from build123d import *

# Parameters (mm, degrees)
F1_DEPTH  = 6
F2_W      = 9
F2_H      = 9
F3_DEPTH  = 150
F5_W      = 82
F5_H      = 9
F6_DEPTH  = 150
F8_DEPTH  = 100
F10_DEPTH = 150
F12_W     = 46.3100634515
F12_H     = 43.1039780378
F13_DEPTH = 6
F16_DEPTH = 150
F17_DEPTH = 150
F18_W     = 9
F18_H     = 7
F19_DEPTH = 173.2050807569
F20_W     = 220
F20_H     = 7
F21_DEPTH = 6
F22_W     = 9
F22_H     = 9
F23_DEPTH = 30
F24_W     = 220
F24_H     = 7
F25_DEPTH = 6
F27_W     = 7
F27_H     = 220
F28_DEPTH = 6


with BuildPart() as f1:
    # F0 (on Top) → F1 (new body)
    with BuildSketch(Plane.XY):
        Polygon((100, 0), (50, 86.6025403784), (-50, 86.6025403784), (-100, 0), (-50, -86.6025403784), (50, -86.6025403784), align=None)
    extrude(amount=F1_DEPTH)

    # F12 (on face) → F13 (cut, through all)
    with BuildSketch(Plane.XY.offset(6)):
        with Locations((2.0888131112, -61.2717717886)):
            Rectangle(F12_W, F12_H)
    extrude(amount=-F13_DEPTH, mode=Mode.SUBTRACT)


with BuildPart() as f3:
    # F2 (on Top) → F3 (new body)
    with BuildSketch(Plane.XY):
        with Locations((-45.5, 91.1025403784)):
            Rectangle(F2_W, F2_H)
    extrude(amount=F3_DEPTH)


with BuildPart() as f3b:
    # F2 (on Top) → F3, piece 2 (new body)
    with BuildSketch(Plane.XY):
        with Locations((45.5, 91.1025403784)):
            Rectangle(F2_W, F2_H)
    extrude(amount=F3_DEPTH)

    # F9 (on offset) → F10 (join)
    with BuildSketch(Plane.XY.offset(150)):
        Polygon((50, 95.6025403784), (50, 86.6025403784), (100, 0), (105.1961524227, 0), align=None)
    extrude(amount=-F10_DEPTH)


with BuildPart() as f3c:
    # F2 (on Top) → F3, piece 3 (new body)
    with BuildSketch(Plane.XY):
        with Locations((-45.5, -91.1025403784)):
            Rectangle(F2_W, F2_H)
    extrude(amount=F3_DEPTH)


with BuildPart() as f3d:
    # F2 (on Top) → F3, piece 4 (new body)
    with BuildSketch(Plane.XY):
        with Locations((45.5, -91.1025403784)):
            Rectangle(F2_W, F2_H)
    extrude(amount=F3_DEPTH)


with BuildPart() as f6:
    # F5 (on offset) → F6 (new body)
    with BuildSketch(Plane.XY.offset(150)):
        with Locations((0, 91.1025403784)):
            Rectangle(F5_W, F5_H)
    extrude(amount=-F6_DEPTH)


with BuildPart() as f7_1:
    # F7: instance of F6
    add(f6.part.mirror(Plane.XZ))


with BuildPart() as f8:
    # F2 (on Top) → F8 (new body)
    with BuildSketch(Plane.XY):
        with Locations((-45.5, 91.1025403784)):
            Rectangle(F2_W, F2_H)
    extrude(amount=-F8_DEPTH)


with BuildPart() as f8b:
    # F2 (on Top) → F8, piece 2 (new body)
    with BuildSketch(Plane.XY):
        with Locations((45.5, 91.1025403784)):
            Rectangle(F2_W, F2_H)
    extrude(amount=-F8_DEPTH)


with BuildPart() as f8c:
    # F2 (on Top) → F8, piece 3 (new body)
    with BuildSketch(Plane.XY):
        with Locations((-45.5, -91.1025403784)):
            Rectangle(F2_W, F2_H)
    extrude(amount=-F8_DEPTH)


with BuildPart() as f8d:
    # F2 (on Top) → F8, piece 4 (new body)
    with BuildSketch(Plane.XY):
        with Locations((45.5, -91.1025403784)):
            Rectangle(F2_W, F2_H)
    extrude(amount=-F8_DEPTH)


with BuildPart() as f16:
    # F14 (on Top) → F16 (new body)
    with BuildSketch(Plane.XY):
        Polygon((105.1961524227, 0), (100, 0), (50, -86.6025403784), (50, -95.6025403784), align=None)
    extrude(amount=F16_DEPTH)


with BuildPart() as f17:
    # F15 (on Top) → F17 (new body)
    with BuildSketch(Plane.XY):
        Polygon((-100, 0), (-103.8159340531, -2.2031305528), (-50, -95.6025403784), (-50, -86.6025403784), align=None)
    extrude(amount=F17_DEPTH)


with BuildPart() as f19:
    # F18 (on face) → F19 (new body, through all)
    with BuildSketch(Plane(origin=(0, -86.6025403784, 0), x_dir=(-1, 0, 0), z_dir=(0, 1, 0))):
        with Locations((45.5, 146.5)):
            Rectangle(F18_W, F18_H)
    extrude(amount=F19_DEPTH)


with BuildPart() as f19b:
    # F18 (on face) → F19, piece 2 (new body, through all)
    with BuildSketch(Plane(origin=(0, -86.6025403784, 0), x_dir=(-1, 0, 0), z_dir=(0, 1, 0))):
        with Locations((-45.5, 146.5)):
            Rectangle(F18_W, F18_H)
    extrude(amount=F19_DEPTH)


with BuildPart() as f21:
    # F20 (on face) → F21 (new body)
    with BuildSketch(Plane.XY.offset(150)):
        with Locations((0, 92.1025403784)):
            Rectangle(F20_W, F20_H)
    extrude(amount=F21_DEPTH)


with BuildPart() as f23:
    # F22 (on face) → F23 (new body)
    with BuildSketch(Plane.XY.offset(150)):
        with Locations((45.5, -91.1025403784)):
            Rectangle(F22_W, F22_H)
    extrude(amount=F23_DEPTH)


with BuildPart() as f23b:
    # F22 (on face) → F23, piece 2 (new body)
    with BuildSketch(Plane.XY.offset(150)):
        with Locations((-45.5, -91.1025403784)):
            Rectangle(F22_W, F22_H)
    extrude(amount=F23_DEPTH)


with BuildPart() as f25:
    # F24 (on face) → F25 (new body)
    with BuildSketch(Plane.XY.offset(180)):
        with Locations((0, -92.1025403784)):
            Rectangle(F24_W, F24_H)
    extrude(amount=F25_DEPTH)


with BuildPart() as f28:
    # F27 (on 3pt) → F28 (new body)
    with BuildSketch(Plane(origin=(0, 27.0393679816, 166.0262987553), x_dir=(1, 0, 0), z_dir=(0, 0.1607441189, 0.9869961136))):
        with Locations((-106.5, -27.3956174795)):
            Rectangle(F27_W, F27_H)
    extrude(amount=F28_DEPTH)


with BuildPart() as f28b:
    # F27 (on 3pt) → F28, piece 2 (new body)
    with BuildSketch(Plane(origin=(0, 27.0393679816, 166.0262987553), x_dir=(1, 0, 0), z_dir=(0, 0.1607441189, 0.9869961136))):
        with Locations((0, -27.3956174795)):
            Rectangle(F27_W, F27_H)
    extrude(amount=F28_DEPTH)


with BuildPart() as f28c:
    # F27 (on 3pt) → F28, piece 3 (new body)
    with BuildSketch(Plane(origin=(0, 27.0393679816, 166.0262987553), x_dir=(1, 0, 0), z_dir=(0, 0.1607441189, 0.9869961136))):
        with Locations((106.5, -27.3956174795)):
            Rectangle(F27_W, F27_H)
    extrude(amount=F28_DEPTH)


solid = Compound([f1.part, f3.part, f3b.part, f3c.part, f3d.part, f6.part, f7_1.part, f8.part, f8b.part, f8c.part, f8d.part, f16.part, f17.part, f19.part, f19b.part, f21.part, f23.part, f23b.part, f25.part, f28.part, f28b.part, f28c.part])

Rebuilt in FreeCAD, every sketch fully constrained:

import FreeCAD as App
import Part
import Sketcher
Q = App.Units.Quantity


def add_polygon(sketch, points):
    """Adds a closed chain of lines whose ends are joined by coincident constraints."""
    first, n = sketch.GeometryCount, len(points)
    for a, b in zip(points, points[1:] + points[:1]):
        sketch.addGeometry(Part.LineSegment(App.Vector(*a, 0), App.Vector(*b, 0)), False)
    for i in range(n):
        sketch.addConstraint(Sketcher.Constraint("Coincident", first + i, 2, first + (i + 1) % n, 1))

doc = App.newDocument("Part")
body = doc.addObject("PartDesign::Body", "Body")

sketch1 = body.newObject("Sketcher::SketchObject", "Sketch")
sketch1.AttachmentSupport = (doc.getObject("XY_Plane"), [""])
sketch1.MapMode = "FlatFace"
add_polygon(sketch1, [(100, 0), (50, 87), (-50, 87), (-100, 0), (-50, -87), (50, -87)])
sketch1.addConstraint([
    Sketcher.Constraint("Horizontal", 1),
    Sketcher.Constraint("Horizontal", 4),
    Sketcher.Constraint("Symmetric", 0, 2, 3, 2, -1, 1),
    Sketcher.Constraint("Symmetric", 2, 2, 5, 2, -1, 1),
    Sketcher.Constraint("PointOnObject", 2, 2, -1),
    Sketcher.Constraint("Parallel", 2, 5),
    Sketcher.Constraint("Vertical", 1, 2, 3, 2),
    Sketcher.Constraint("DistanceX", 1, 2, 1, 1, 100.0),
    Sketcher.Constraint("Angle", 0, Q("120 deg")),
    Sketcher.Constraint("Distance", 0, 100.0),
])
pad1 = body.newObject("PartDesign::Pad", "Pad")
pad1.Profile = sketch1
pad1.Length = 6

sketch2 = body.newObject("Sketcher::SketchObject", "Sketch001")
sketch2.AttachmentSupport = (doc.getObject("XY_Plane"), [""])
sketch2.MapMode = "FlatFace"
sketch2.AttachmentOffset = App.Placement(App.Vector(0, 0, 6), App.Rotation())
add_polygon(sketch2, [(-21, -40), (-21, -83), (25, -83), (25, -40)])
sketch2.addConstraint([
    Sketcher.Constraint("Vertical", 0),
    Sketcher.Constraint("Horizontal", 1),
    Sketcher.Constraint("Vertical", 2),
    Sketcher.Constraint("Horizontal", 3),
    Sketcher.Constraint("DistanceY", 0, 2, 0, 1, 43.103978),
    Sketcher.Constraint("DistanceX", 1, 1, 1, 2, 46.310063),
    Sketcher.Constraint("DistanceX", 0, 2, -1, 1, 21.066219),
    Sketcher.Constraint("DistanceY", 0, 2, -1, 1, 82.823761),
])
pocket1 = body.newObject("PartDesign::Pocket", "Pocket")
pocket1.Profile = sketch2
pocket1.Type = "ThroughAll"
body2 = doc.addObject("PartDesign::Body", "Body001")

sketch3 = body2.newObject("Sketcher::SketchObject", "Sketch002")
sketch3.AttachmentSupport = (doc.getObject("XY_Plane001"), [""])
sketch3.MapMode = "FlatFace"
add_polygon(sketch3, [(-50, 96), (-50, 87), (-41, 87), (-41, 96)])
sketch3.addConstraint([
    Sketcher.Constraint("Vertical", 0),
    Sketcher.Constraint("Horizontal", 1),
    Sketcher.Constraint("Vertical", 2),
    Sketcher.Constraint("Horizontal", 3),
    Sketcher.Constraint("Equal", 3, 0),
    Sketcher.Constraint("DistanceX", 1, 1, 1, 2, 9.0),
    Sketcher.Constraint("DistanceX", 0, 2, -1, 1, 50.0),
    Sketcher.Constraint("DistanceY", -1, 1, 0, 2, 86.60254),
])
pad2 = body2.newObject("PartDesign::Pad", "Pad001")
pad2.Profile = sketch3
pad2.Length = 150
body3 = doc.addObject("PartDesign::Body", "Body002")

sketch4 = body3.newObject("Sketcher::SketchObject", "Sketch003")
sketch4.AttachmentSupport = (doc.getObject("XY_Plane002"), [""])
sketch4.MapMode = "FlatFace"
add_polygon(sketch4, [(41, 96), (41, 87), (50, 87), (50, 96)])
sketch4.addConstraint([
    Sketcher.Constraint("Vertical", 0),
    Sketcher.Constraint("Horizontal", 1),
    Sketcher.Constraint("Vertical", 2),
    Sketcher.Constraint("Horizontal", 3),
    Sketcher.Constraint("Equal", 3, 0),
    Sketcher.Constraint("DistanceX", 1, 1, 1, 2, 9.0),
    Sketcher.Constraint("DistanceX", -1, 1, 0, 2, 41.0),
    Sketcher.Constraint("DistanceY", -1, 1, 0, 2, 86.60254),
])
pad3 = body3.newObject("PartDesign::Pad", "Pad002")
pad3.Profile = sketch4
pad3.Length = 150

sketch5 = body3.newObject("Sketcher::SketchObject", "Sketch004")
sketch5.AttachmentSupport = (doc.getObject("XY_Plane002"), [""])
sketch5.MapMode = "FlatFace"
sketch5.AttachmentOffset = App.Placement(App.Vector(0, 0, 150), App.Rotation())
add_polygon(sketch5, [(50, 96), (50, 87), (100, 0), (105, 0)])
sketch5.addConstraint([
    Sketcher.Constraint("Vertical", 0),
    Sketcher.Constraint("Horizontal", 2),
    Sketcher.Constraint("PointOnObject", 1, 2, -1),
    Sketcher.Constraint("Parallel", 1, 3),
    Sketcher.Constraint("DistanceY", 0, 2, 0, 1, 9.0),
    Sketcher.Constraint("Angle", 1, Q("-60 deg")),
    Sketcher.Constraint("Distance", 1, 100.0),
    Sketcher.Constraint("DistanceX", -1, 1, 0, 2, 50.0),
])
pad4 = body3.newObject("PartDesign::Pad", "Pad003")
pad4.Profile = sketch5
pad4.Length = 150
pad4.Reversed = True
body4 = doc.addObject("PartDesign::Body", "Body003")

sketch6 = body4.newObject("Sketcher::SketchObject", "Sketch005")
sketch6.AttachmentSupport = (doc.getObject("XY_Plane003"), [""])
sketch6.MapMode = "FlatFace"
add_polygon(sketch6, [(-50, -87), (-50, -96), (-41, -96), (-41, -87)])
sketch6.addConstraint([
    Sketcher.Constraint("Vertical", 0),
    Sketcher.Constraint("Horizontal", 1),
    Sketcher.Constraint("Vertical", 2),
    Sketcher.Constraint("Horizontal", 3),
    Sketcher.Constraint("Equal", 3, 0),
    Sketcher.Constraint("DistanceX", 1, 1, 1, 2, 9.0),
    Sketcher.Constraint("DistanceX", 0, 2, -1, 1, 50.0),
    Sketcher.Constraint("DistanceY", 0, 2, -1, 1, 95.60254),
])
pad5 = body4.newObject("PartDesign::Pad", "Pad004")
pad5.Profile = sketch6
pad5.Length = 150
body5 = doc.addObject("PartDesign::Body", "Body004")

sketch7 = body5.newObject("Sketcher::SketchObject", "Sketch006")
sketch7.AttachmentSupport = (doc.getObject("XY_Plane004"), [""])
sketch7.MapMode = "FlatFace"
add_polygon(sketch7, [(41, -87), (41, -96), (50, -96), (50, -87)])
sketch7.addConstraint([
    Sketcher.Constraint("Vertical", 0),
    Sketcher.Constraint("Horizontal", 1),
    Sketcher.Constraint("Vertical", 2),
    Sketcher.Constraint("Horizontal", 3),
    Sketcher.Constraint("Equal", 3, 0),
    Sketcher.Constraint("DistanceX", 1, 1, 1, 2, 9.0),
    Sketcher.Constraint("DistanceX", -1, 1, 0, 2, 41.0),
    Sketcher.Constraint("DistanceY", 0, 2, -1, 1, 95.60254),
])
pad6 = body5.newObject("PartDesign::Pad", "Pad005")
pad6.Profile = sketch7
pad6.Length = 150
body6 = doc.addObject("PartDesign::Body", "Body005")

sketch8 = body6.newObject("Sketcher::SketchObject", "Sketch007")
sketch8.AttachmentSupport = (doc.getObject("XY_Plane005"), [""])
sketch8.MapMode = "FlatFace"
sketch8.AttachmentOffset = App.Placement(App.Vector(0, 0, 150), App.Rotation())
add_polygon(sketch8, [(-41, 96), (-41, 87), (41, 87), (41, 96)])
sketch8.addConstraint([
    Sketcher.Constraint("Vertical", 0),
    Sketcher.Constraint("Horizontal", 1),
    Sketcher.Constraint("Vertical", 2),
    Sketcher.Constraint("Horizontal", 3),
    Sketcher.Constraint("DistanceX", 1, 1, 1, 2, 82.0),
    Sketcher.Constraint("DistanceY", 0, 2, 0, 1, 9.0),
    Sketcher.Constraint("DistanceX", 0, 2, -1, 1, 41.0),
    Sketcher.Constraint("DistanceY", -1, 1, 0, 2, 86.60254),
])
pad7 = body6.newObject("PartDesign::Pad", "Pad006")
pad7.Profile = sketch8
pad7.Length = 150
pad7.Reversed = True
body7 = doc.addObject("PartDesign::Body", "Body006")
doc.recompute()

mirroring = doc.addObject("Part::Mirroring", "Mirroring")
mirroring.Source = body6
mirroring.Base = App.Vector(0, 0, 0)
mirroring.Normal = App.Vector(0, -1, 0)
body7.BaseFeature = mirroring
doc.recompute()
body8 = doc.addObject("PartDesign::Body", "Body007")

sketch9 = body8.newObject("Sketcher::SketchObject", "Sketch008")
sketch9.AttachmentSupport = (doc.getObject("XY_Plane007"), [""])
sketch9.MapMode = "FlatFace"
add_polygon(sketch9, [(-50, 96), (-50, 87), (-41, 87), (-41, 96)])
sketch9.addConstraint([
    Sketcher.Constraint("Vertical", 0),
    Sketcher.Constraint("Horizontal", 1),
    Sketcher.Constraint("Vertical", 2),
    Sketcher.Constraint("Horizontal", 3),
    Sketcher.Constraint("Equal", 3, 0),
    Sketcher.Constraint("DistanceX", 1, 1, 1, 2, 9.0),
    Sketcher.Constraint("DistanceX", 0, 2, -1, 1, 50.0),
    Sketcher.Constraint("DistanceY", -1, 1, 0, 2, 86.60254),
])
pad8 = body8.newObject("PartDesign::Pad", "Pad007")
pad8.Profile = sketch9
pad8.Length = 100
pad8.Reversed = True
body9 = doc.addObject("PartDesign::Body", "Body008")

sketch10 = body9.newObject("Sketcher::SketchObject", "Sketch009")
sketch10.AttachmentSupport = (doc.getObject("XY_Plane008"), [""])
sketch10.MapMode = "FlatFace"
add_polygon(sketch10, [(41, 96), (41, 87), (50, 87), (50, 96)])
sketch10.addConstraint([
    Sketcher.Constraint("Vertical", 0),
    Sketcher.Constraint("Horizontal", 1),
    Sketcher.Constraint("Vertical", 2),
    Sketcher.Constraint("Horizontal", 3),
    Sketcher.Constraint("Equal", 3, 0),
    Sketcher.Constraint("DistanceX", 1, 1, 1, 2, 9.0),
    Sketcher.Constraint("DistanceX", -1, 1, 0, 2, 41.0),
    Sketcher.Constraint("DistanceY", -1, 1, 0, 2, 86.60254),
])
pad9 = body9.newObject("PartDesign::Pad", "Pad008")
pad9.Profile = sketch10
pad9.Length = 100
pad9.Reversed = True
body10 = doc.addObject("PartDesign::Body", "Body009")

sketch11 = body10.newObject("Sketcher::SketchObject", "Sketch010")
sketch11.AttachmentSupport = (doc.getObject("XY_Plane009"), [""])
sketch11.MapMode = "FlatFace"
add_polygon(sketch11, [(-50, -87), (-50, -96), (-41, -96), (-41, -87)])
sketch11.addConstraint([
    Sketcher.Constraint("Vertical", 0),
    Sketcher.Constraint("Horizontal", 1),
    Sketcher.Constraint("Vertical", 2),
    Sketcher.Constraint("Horizontal", 3),
    Sketcher.Constraint("Equal", 3, 0),
    Sketcher.Constraint("DistanceX", 1, 1, 1, 2, 9.0),
    Sketcher.Constraint("DistanceX", 0, 2, -1, 1, 50.0),
    Sketcher.Constraint("DistanceY", 0, 2, -1, 1, 95.60254),
])
pad10 = body10.newObject("PartDesign::Pad", "Pad009")
pad10.Profile = sketch11
pad10.Length = 100
pad10.Reversed = True
body11 = doc.addObject("PartDesign::Body", "Body010")

sketch12 = body11.newObject("Sketcher::SketchObject", "Sketch011")
sketch12.AttachmentSupport = (doc.getObject("XY_Plane010"), [""])
sketch12.MapMode = "FlatFace"
add_polygon(sketch12, [(41, -87), (41, -96), (50, -96), (50, -87)])
sketch12.addConstraint([
    Sketcher.Constraint("Vertical", 0),
    Sketcher.Constraint("Horizontal", 1),
    Sketcher.Constraint("Vertical", 2),
    Sketcher.Constraint("Horizontal", 3),
    Sketcher.Constraint("Equal", 3, 0),
    Sketcher.Constraint("DistanceX", 1, 1, 1, 2, 9.0),
    Sketcher.Constraint("DistanceX", -1, 1, 0, 2, 41.0),
    Sketcher.Constraint("DistanceY", 0, 2, -1, 1, 95.60254),
])
pad11 = body11.newObject("PartDesign::Pad", "Pad010")
pad11.Profile = sketch12
pad11.Length = 100
pad11.Reversed = True
body12 = doc.addObject("PartDesign::Body", "Body011")

sketch13 = body12.newObject("Sketcher::SketchObject", "Sketch012")
sketch13.AttachmentSupport = (doc.getObject("XY_Plane011"), [""])
sketch13.MapMode = "FlatFace"
add_polygon(sketch13, [(105, 0), (100, 0), (50, -87), (50, -96)])
sketch13.addConstraint([
    Sketcher.Constraint("Horizontal", 0),
    Sketcher.Constraint("Vertical", 2),
    Sketcher.Constraint("PointOnObject", 0, 2, -1),
    Sketcher.Constraint("Parallel", 1, 3),
    Sketcher.Constraint("DistanceY", 2, 2, 2, 1, 9.0),
    Sketcher.Constraint("Angle", 1, Q("-120 deg")),
    Sketcher.Constraint("Distance", 1, 100.0),
    Sketcher.Constraint("DistanceX", -1, 1, 0, 2, 100.0),
])
pad12 = body12.newObject("PartDesign::Pad", "Pad011")
pad12.Profile = sketch13
pad12.Length = 150
body13 = doc.addObject("PartDesign::Body", "Body012")

sketch14 = body13.newObject("Sketcher::SketchObject", "Sketch013")
sketch14.AttachmentSupport = (doc.getObject("XY_Plane012"), [""])
sketch14.MapMode = "FlatFace"
add_polygon(sketch14, [(-100, 0), (-103.8, -2.2), (-50, -95.6), (-50, -86.6)])
sketch14.addConstraint([
    Sketcher.Constraint("Vertical", 2),
    Sketcher.Constraint("PointOnObject", 3, 2, -1),
    Sketcher.Constraint("Perpendicular", 0, 3),
    Sketcher.Constraint("DistanceY", 2, 1, 2, 2, 9.0),
    Sketcher.Constraint("Angle", 0, Q("-150 deg")),
    Sketcher.Constraint("Distance", 3, 100.0),
    Sketcher.Constraint("DistanceX", 1, 2, -1, 1, 50.0),
    Sketcher.Constraint("Distance", 0, 4.406261),
])
pad13 = body13.newObject("PartDesign::Pad", "Pad012")
pad13.Profile = sketch14
pad13.Length = 150
body14 = doc.addObject("PartDesign::Body", "Body013")

sketch15 = body14.newObject("Sketcher::SketchObject", "Sketch014")
sketch15.AttachmentSupport = (doc.getObject("XZ_Plane013"), [""])
sketch15.MapMode = "FlatFace"
sketch15.AttachmentOffset = App.Placement(App.Vector(0, 0, 86.60254), App.Rotation())
add_polygon(sketch15, [(-41, 150), (-41, 143), (-50, 143), (-50, 150)])
sketch15.addConstraint([
    Sketcher.Constraint("Vertical", 0),
    Sketcher.Constraint("Horizontal", 1),
    Sketcher.Constraint("Vertical", 2),
    Sketcher.Constraint("Horizontal", 3),
    Sketcher.Constraint("DistanceX", 1, 2, 1, 1, 9.0),
    Sketcher.Constraint("DistanceY", 0, 2, 0, 1, 7.0),
    Sketcher.Constraint("DistanceX", 0, 2, -1, 1, 41.0),
    Sketcher.Constraint("DistanceY", -1, 1, 0, 2, 143.0),
])
pad14 = body14.newObject("PartDesign::Pad", "Pad013")
pad14.Profile = sketch15
pad14.Length = 173.205081
pad14.Reversed = True
body15 = doc.addObject("PartDesign::Body", "Body014")

sketch16 = body15.newObject("Sketcher::SketchObject", "Sketch015")
sketch16.AttachmentSupport = (doc.getObject("XZ_Plane014"), [""])
sketch16.MapMode = "FlatFace"
sketch16.AttachmentOffset = App.Placement(App.Vector(0, 0, 86.60254), App.Rotation())
add_polygon(sketch16, [(50, 150), (50, 143), (41, 143), (41, 150)])
sketch16.addConstraint([
    Sketcher.Constraint("Vertical", 0),
    Sketcher.Constraint("Horizontal", 1),
    Sketcher.Constraint("Vertical", 2),
    Sketcher.Constraint("Horizontal", 3),
    Sketcher.Constraint("DistanceX", 1, 2, 1, 1, 9.0),
    Sketcher.Constraint("DistanceY", 0, 2, 0, 1, 7.0),
    Sketcher.Constraint("DistanceX", -1, 1, 0, 2, 50.0),
    Sketcher.Constraint("DistanceY", -1, 1, 0, 2, 143.0),
])
pad15 = body15.newObject("PartDesign::Pad", "Pad014")
pad15.Profile = sketch16
pad15.Length = 173.205081
pad15.Reversed = True
body16 = doc.addObject("PartDesign::Body", "Body015")

sketch17 = body16.newObject("Sketcher::SketchObject", "Sketch016")
sketch17.AttachmentSupport = (doc.getObject("XY_Plane015"), [""])
sketch17.MapMode = "FlatFace"
sketch17.AttachmentOffset = App.Placement(App.Vector(0, 0, 150), App.Rotation())
add_polygon(sketch17, [(-110, 96), (-110, 89), (110, 89), (110, 96)])
sketch17.addConstraint([
    Sketcher.Constraint("Vertical", 0),
    Sketcher.Constraint("Horizontal", 1),
    Sketcher.Constraint("Vertical", 2),
    Sketcher.Constraint("Horizontal", 3),
    Sketcher.Constraint("DistanceX", 1, 1, 1, 2, 220.0),
    Sketcher.Constraint("DistanceY", 0, 2, 0, 1, 7.0),
    Sketcher.Constraint("DistanceX", 0, 2, -1, 1, 110.0),
    Sketcher.Constraint("DistanceY", -1, 1, 0, 2, 88.60254),
])
pad16 = body16.newObject("PartDesign::Pad", "Pad015")
pad16.Profile = sketch17
pad16.Length = 6
body17 = doc.addObject("PartDesign::Body", "Body016")

sketch18 = body17.newObject("Sketcher::SketchObject", "Sketch017")
sketch18.AttachmentSupport = (doc.getObject("XY_Plane016"), [""])
sketch18.MapMode = "FlatFace"
sketch18.AttachmentOffset = App.Placement(App.Vector(0, 0, 150), App.Rotation())
add_polygon(sketch18, [(41, -87), (41, -96), (50, -96), (50, -87)])
sketch18.addConstraint([
    Sketcher.Constraint("Vertical", 0),
    Sketcher.Constraint("Horizontal", 1),
    Sketcher.Constraint("Vertical", 2),
    Sketcher.Constraint("Horizontal", 3),
    Sketcher.Constraint("Equal", 3, 0),
    Sketcher.Constraint("DistanceX", 1, 1, 1, 2, 9.0),
    Sketcher.Constraint("DistanceX", -1, 1, 0, 2, 41.0),
    Sketcher.Constraint("DistanceY", 0, 2, -1, 1, 95.60254),
])
pad17 = body17.newObject("PartDesign::Pad", "Pad016")
pad17.Profile = sketch18
pad17.Length = 30
body18 = doc.addObject("PartDesign::Body", "Body017")

sketch19 = body18.newObject("Sketcher::SketchObject", "Sketch018")
sketch19.AttachmentSupport = (doc.getObject("XY_Plane017"), [""])
sketch19.MapMode = "FlatFace"
sketch19.AttachmentOffset = App.Placement(App.Vector(0, 0, 150), App.Rotation())
add_polygon(sketch19, [(-50, -87), (-50, -96), (-41, -96), (-41, -87)])
sketch19.addConstraint([
    Sketcher.Constraint("Vertical", 0),
    Sketcher.Constraint("Horizontal", 1),
    Sketcher.Constraint("Vertical", 2),
    Sketcher.Constraint("Horizontal", 3),
    Sketcher.Constraint("Equal", 3, 0),
    Sketcher.Constraint("DistanceX", 1, 1, 1, 2, 9.0),
    Sketcher.Constraint("DistanceX", 0, 2, -1, 1, 50.0),
    Sketcher.Constraint("DistanceY", 0, 2, -1, 1, 95.60254),
])
pad18 = body18.newObject("PartDesign::Pad", "Pad017")
pad18.Profile = sketch19
pad18.Length = 30
body19 = doc.addObject("PartDesign::Body", "Body018")

sketch20 = body19.newObject("Sketcher::SketchObject", "Sketch019")
sketch20.AttachmentSupport = (doc.getObject("XY_Plane018"), [""])
sketch20.MapMode = "FlatFace"
sketch20.AttachmentOffset = App.Placement(App.Vector(0, 0, 180), App.Rotation())
add_polygon(sketch20, [(-110, -89), (-110, -96), (110, -96), (110, -89)])
sketch20.addConstraint([
    Sketcher.Constraint("Vertical", 0),
    Sketcher.Constraint("Horizontal", 1),
    Sketcher.Constraint("Vertical", 2),
    Sketcher.Constraint("Horizontal", 3),
    Sketcher.Constraint("DistanceX", 1, 1, 1, 2, 220.0),
    Sketcher.Constraint("DistanceY", 0, 2, 0, 1, 7.0),
    Sketcher.Constraint("DistanceX", 0, 2, -1, 1, 110.0),
    Sketcher.Constraint("DistanceY", 0, 2, -1, 1, 95.60254),
])
pad19 = body19.newObject("PartDesign::Pad", "Pad018")
pad19.Profile = sketch20
pad19.Length = 6
body20 = doc.addObject("PartDesign::Body", "Body019")

sketch21 = body20.newObject("Sketcher::SketchObject", "Sketch020")
sketch21.Placement = App.Placement(App.Vector(0, 27.039368, 166.026299), App.Rotation(App.Vector(1, 0, 0), App.Vector(0, 0.986996114, -0.160744119), App.Vector(0, 0.160744119, 0.986996114), "ZXY"))
add_polygon(sketch21, [(-110, 83), (-110, -137), (-103, -137), (-103, 83)])
sketch21.addConstraint([
    Sketcher.Constraint("Vertical", 0),
    Sketcher.Constraint("Horizontal", 1),
    Sketcher.Constraint("Vertical", 2),
    Sketcher.Constraint("Horizontal", 3),
    Sketcher.Constraint("DistanceX", 1, 1, 1, 2, 7.0),
    Sketcher.Constraint("DistanceY", 0, 2, 0, 1, 220.0),
    Sketcher.Constraint("DistanceX", 0, 2, -1, 1, 110.0),
    Sketcher.Constraint("DistanceY", 0, 2, -1, 1, 137.395618),
])
pad20 = body20.newObject("PartDesign::Pad", "Pad019")
pad20.Profile = sketch21
pad20.Length = 6
body21 = doc.addObject("PartDesign::Body", "Body020")

sketch22 = body21.newObject("Sketcher::SketchObject", "Sketch021")
sketch22.Placement = App.Placement(App.Vector(0, 27.039368, 166.026299), App.Rotation(App.Vector(1, 0, 0), App.Vector(0, 0.986996114, -0.160744119), App.Vector(0, 0.160744119, 0.986996114), "ZXY"))
add_polygon(sketch22, [(-4, 83), (-4, -137), (4, -137), (4, 83)])
sketch22.addConstraint([
    Sketcher.Constraint("Vertical", 0),
    Sketcher.Constraint("Horizontal", 1),
    Sketcher.Constraint("Vertical", 2),
    Sketcher.Constraint("Horizontal", 3),
    Sketcher.Constraint("DistanceX", 1, 1, 1, 2, 7.0),
    Sketcher.Constraint("DistanceY", 0, 2, 0, 1, 220.0),
    Sketcher.Constraint("DistanceX", 0, 2, -1, 1, 3.5),
    Sketcher.Constraint("DistanceY", 0, 2, -1, 1, 137.395618),
])
pad21 = body21.newObject("PartDesign::Pad", "Pad020")
pad21.Profile = sketch22
pad21.Length = 6
body22 = doc.addObject("PartDesign::Body", "Body021")

sketch23 = body22.newObject("Sketcher::SketchObject", "Sketch022")
sketch23.Placement = App.Placement(App.Vector(0, 27.039368, 166.026299), App.Rotation(App.Vector(1, 0, 0), App.Vector(0, 0.986996114, -0.160744119), App.Vector(0, 0.160744119, 0.986996114), "ZXY"))
add_polygon(sketch23, [(103, 83), (103, -137), (110, -137), (110, 83)])
sketch23.addConstraint([
    Sketcher.Constraint("Vertical", 0),
    Sketcher.Constraint("Horizontal", 1),
    Sketcher.Constraint("Vertical", 2),
    Sketcher.Constraint("Horizontal", 3),
    Sketcher.Constraint("DistanceX", 1, 1, 1, 2, 7.0),
    Sketcher.Constraint("DistanceY", 0, 2, 0, 1, 220.0),
    Sketcher.Constraint("DistanceX", -1, 1, 0, 2, 103.0),
    Sketcher.Constraint("DistanceY", 0, 2, -1, 1, 137.395618),
])
pad22 = body22.newObject("PartDesign::Pad", "Pad021")
pad22.Profile = sketch23
pad22.Length = 6

doc.recompute()
